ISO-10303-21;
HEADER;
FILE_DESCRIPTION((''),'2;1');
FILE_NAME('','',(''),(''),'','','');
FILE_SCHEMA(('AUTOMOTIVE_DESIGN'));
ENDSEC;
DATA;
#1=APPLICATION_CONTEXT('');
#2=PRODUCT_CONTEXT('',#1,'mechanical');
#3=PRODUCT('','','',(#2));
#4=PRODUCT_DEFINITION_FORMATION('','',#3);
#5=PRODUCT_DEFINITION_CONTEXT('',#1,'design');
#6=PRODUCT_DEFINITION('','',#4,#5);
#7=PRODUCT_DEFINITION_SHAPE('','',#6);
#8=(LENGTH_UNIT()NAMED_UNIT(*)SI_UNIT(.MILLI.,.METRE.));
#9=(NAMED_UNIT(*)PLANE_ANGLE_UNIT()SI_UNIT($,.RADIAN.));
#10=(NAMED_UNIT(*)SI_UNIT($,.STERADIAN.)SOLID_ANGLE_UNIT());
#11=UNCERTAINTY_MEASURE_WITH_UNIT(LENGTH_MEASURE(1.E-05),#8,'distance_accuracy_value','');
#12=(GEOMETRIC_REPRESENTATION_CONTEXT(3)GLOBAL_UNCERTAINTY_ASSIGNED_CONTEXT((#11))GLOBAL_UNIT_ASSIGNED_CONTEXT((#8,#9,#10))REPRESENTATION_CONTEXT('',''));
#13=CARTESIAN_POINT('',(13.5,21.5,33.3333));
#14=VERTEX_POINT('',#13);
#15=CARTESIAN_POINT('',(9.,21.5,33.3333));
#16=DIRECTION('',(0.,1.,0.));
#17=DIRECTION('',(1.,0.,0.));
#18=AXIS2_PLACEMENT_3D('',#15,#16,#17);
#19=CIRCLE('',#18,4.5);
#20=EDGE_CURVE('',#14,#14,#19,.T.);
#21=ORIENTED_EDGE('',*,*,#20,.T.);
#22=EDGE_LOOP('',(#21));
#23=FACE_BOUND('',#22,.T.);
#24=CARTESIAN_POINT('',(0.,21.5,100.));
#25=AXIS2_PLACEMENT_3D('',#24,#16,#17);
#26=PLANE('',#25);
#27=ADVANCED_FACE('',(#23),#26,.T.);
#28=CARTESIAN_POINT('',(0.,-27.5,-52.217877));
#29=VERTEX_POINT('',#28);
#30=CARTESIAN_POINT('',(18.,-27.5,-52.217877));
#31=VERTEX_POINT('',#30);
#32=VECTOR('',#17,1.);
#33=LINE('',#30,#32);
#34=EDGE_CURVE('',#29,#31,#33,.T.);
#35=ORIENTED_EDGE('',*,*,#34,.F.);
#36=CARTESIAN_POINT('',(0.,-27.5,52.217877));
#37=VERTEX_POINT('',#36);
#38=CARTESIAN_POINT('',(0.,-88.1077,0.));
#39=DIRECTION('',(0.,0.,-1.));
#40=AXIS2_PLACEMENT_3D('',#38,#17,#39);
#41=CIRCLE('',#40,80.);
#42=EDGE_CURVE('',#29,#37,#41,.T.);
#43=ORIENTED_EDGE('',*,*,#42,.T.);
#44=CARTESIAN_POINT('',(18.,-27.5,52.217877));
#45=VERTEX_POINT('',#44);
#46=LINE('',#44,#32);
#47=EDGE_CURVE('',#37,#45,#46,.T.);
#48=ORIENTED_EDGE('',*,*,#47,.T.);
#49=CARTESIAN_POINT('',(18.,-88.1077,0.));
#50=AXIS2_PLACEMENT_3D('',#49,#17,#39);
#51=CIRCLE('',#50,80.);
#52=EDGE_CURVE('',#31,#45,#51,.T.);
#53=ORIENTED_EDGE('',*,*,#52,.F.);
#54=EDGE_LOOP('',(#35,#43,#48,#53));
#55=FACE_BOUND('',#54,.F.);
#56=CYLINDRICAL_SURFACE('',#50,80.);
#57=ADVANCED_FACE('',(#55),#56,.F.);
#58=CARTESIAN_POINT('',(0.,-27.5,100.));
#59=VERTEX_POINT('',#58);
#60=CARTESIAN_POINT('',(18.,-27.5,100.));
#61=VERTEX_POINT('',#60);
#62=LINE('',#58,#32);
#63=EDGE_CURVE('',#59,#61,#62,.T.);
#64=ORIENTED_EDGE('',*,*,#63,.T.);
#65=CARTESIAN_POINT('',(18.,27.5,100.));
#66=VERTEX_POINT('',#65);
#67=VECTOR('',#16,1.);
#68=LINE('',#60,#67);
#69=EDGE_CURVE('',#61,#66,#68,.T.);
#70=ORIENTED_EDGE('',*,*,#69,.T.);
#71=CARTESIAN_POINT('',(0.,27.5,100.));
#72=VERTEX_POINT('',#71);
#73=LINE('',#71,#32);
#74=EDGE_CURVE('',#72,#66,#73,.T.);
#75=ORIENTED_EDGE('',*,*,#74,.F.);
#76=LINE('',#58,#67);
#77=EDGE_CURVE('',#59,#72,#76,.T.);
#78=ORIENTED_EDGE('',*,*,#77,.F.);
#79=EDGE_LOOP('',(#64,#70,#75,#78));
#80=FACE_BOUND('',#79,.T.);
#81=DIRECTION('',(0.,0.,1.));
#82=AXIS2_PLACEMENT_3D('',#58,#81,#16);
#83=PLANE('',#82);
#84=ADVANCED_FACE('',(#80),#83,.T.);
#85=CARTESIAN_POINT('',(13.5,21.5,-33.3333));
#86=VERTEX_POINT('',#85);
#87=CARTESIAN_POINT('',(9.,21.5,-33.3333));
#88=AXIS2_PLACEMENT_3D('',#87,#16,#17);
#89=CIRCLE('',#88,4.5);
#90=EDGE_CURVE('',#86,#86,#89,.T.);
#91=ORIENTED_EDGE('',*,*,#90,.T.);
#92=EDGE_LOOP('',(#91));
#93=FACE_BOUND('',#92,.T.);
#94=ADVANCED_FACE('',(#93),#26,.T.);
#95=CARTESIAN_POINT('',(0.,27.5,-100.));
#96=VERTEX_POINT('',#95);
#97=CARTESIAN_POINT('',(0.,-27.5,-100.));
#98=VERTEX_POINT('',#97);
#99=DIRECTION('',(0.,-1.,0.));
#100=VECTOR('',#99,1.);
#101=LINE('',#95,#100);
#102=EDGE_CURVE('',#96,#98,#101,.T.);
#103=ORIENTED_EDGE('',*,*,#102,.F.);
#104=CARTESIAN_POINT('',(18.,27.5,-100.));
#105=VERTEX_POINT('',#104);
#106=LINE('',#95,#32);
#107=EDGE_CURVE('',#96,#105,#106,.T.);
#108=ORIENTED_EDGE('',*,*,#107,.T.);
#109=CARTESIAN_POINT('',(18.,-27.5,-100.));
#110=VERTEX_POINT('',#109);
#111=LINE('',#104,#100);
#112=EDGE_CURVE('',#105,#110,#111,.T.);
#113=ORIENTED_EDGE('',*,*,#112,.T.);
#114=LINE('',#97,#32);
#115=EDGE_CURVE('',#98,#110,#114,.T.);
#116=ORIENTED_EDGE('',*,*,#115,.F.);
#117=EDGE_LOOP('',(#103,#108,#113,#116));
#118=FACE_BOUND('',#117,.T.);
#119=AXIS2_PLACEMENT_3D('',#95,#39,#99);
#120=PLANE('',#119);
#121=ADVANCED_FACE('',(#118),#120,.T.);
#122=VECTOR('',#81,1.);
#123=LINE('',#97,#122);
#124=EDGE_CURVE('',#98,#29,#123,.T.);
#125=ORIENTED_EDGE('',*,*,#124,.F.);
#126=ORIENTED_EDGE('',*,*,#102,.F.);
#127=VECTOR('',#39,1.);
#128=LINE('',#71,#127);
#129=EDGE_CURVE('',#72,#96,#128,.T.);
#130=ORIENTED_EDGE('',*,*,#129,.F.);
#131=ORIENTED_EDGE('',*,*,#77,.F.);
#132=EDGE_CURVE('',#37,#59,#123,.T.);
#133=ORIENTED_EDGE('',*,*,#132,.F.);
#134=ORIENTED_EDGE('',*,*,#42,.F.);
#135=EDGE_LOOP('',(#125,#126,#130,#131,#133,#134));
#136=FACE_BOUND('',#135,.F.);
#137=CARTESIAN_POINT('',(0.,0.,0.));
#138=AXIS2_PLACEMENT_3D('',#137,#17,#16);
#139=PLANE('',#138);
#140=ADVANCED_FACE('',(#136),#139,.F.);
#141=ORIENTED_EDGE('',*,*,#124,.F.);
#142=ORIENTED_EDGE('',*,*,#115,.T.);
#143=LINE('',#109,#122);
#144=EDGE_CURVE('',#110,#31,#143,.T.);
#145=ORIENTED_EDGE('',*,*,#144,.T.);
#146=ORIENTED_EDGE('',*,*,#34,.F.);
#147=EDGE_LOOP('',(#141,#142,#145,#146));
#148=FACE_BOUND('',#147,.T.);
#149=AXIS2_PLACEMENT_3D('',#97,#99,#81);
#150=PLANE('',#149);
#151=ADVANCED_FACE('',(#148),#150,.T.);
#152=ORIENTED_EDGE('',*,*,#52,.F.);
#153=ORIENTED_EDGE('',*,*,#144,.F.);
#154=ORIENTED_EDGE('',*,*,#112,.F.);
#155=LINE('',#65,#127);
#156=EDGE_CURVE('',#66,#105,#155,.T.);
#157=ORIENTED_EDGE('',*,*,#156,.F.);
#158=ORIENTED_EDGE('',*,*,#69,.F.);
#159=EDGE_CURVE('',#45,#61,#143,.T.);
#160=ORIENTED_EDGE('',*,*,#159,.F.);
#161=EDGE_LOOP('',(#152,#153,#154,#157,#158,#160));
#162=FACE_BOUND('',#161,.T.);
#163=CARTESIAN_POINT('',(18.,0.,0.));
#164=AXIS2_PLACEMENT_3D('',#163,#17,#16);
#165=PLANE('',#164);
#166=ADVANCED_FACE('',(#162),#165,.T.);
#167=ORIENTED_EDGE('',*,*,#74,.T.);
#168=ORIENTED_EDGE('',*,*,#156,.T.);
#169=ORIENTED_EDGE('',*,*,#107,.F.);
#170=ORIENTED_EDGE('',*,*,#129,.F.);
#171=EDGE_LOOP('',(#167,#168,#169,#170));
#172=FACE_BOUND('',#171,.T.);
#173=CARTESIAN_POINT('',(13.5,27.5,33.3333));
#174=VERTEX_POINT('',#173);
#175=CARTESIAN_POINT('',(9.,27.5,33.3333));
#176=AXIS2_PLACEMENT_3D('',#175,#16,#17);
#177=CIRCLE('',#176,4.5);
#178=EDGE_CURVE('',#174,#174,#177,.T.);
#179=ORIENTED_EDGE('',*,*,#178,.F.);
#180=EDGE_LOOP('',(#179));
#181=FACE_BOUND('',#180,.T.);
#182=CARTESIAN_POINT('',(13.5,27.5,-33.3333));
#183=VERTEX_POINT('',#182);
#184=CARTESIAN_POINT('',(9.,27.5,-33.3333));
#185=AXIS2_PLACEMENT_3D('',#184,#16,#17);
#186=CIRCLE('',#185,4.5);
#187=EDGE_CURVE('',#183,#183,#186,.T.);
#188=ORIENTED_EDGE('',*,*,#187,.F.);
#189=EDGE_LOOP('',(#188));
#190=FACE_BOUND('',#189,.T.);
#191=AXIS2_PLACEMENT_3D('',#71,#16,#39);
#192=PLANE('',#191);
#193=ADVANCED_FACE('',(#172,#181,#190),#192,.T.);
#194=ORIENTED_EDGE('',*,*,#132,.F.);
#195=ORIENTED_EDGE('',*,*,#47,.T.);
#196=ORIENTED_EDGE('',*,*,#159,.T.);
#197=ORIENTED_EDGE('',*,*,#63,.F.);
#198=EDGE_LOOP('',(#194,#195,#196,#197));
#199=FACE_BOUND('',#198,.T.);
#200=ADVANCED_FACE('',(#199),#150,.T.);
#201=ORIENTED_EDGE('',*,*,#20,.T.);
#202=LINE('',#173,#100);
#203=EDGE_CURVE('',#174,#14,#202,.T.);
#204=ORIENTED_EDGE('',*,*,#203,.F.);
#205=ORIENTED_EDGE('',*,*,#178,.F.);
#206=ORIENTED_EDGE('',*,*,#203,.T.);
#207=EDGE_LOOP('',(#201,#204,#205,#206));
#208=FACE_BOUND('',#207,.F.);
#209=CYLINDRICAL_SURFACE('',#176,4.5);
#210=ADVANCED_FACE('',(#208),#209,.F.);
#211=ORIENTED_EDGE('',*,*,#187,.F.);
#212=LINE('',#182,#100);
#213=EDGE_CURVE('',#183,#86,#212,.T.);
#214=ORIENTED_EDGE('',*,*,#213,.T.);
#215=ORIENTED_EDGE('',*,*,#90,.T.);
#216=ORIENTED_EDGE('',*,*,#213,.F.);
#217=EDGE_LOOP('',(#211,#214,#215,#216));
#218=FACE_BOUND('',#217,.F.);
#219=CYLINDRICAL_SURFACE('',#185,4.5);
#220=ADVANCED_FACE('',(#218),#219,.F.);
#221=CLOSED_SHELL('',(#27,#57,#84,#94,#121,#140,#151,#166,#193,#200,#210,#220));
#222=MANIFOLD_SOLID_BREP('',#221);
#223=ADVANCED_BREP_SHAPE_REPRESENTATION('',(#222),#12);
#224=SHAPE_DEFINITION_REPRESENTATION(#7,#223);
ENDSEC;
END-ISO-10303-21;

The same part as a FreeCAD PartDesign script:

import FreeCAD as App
import Part
import Sketcher


def add_polygon(sketch, points):
    """Adds a closed chain of lines whose ends are joined by coincident constraints."""
    first, n = sketch.GeometryCount, len(points)
    for a, b in zip(points, points[1:] + points[:1]):
        sketch.addGeometry(Part.LineSegment(App.Vector(*a, 0), App.Vector(*b, 0)), False)
    for i in range(n):
        sketch.addConstraint(Sketcher.Constraint("Coincident", first + i, 2, first + (i + 1) % n, 1))

doc = App.newDocument("Part")
params = doc.addObject("Spreadsheet::Sheet", "Params")
for row, (alias, value) in enumerate([
    ("sketch1_width", "55 mm"),
    ("sketch1_height", "200 mm"),
    ("pad1_length", "18 mm"),
    ("sketch2_diameter", "9 mm"),
    ("pocket1_length", "6 mm"),
    ("sketch3_diameter", "160 mm"),
    ("pocket2_length", "18 mm"),
], start=1):
    params.set(f"A{row}", alias)
    params.set(f"B{row}", "=" + value)
    params.setAlias(f"B{row}", alias)

body = doc.addObject("PartDesign::Body", "Body")

sketch1 = body.newObject("Sketcher::SketchObject", "Sketch")
sketch1.AttachmentSupport = (doc.getObject("YZ_Plane"), [""])
sketch1.MapMode = "FlatFace"
add_polygon(sketch1, [(-28, -100), (28, -100), (28, 100), (-28, 100)])
sketch1.addConstraint([
    Sketcher.Constraint("Horizontal", 0),
    Sketcher.Constraint("Vertical", 1),
    Sketcher.Constraint("Horizontal", 2),
    Sketcher.Constraint("Vertical", 3),
    Sketcher.Constraint("Symmetric", 0, 2, 2, 2, -1, 1),
    Sketcher.Constraint("DistanceX", 0, 1, 0, 2, 55.0),
    Sketcher.Constraint("DistanceY", 1, 1, 1, 2, 200.0),
])
sketch1.setExpression("Constraints[9]", "Params.sketch1_width")
sketch1.setExpression("Constraints[10]", "Params.sketch1_height")
pad1 = body.newObject("PartDesign::Pad", "Pad")
pad1.Profile = sketch1
pad1.setExpression("Length", "Params.pad1_length")

sketch2 = body.newObject("Sketcher::SketchObject", "Sketch001")
sketch2.AttachmentSupport = (doc.getObject("XZ_Plane"), [""])
sketch2.MapMode = "FlatFace"
sketch2.AttachmentOffset = App.Placement(App.Vector(0, 0, -27.5), App.Rotation())
sketch2.addGeometry([
    Part.Circle(App.Vector(9, 33.3, 0), App.Vector(0, 0, 1), 4.5),
    Part.Circle(App.Vector(9, -33.3, 0), App.Vector(0, 0, 1), 4.5),
], False)
sketch2.addConstraint([
    Sketcher.Constraint("Equal", 0, 1),
    Sketcher.Constraint("Symmetric", 0, 3, 1, 3, -1),
    Sketcher.Constraint("Diameter", 0, 9.0),
    Sketcher.Constraint("DistanceX", -1, 1, 0, 3, 9.0),
    Sketcher.Constraint("DistanceY", 1, 3, 0, 3, 66.6666),
])
sketch2.setExpression("Constraints[2]", "Params.sketch2_diameter")
pocket1 = body.newObject("PartDesign::Pocket", "Pocket")
pocket1.Profile = sketch2
pocket1.setExpression("Length", "Params.pocket1_length")
pocket1.Reversed = True

sketch3 = body.newObject("Sketcher::SketchObject", "Sketch002")
sketch3.AttachmentSupport = (doc.getObject("YZ_Plane"), [""])
sketch3.MapMode = "FlatFace"
sketch3.AttachmentOffset = App.Placement(App.Vector(0, 0, 18), App.Rotation())
sketch3.addGeometry(Part.Circle(App.Vector(-88, 0, 0), App.Vector(0, 0, 1), 80), False)
sketch3.addConstraint([
    Sketcher.Constraint("PointOnObject", 0, 3, -1),
    Sketcher.Constraint("Diameter", 0, 160.0),
    Sketcher.Constraint("DistanceX", 0, 3, -1, 1, 88.1077),
])
sketch3.setExpression("Constraints[1]", "Params.sketch3_diameter")
pocket2 = body.newObject("PartDesign::Pocket", "Pocket001")
pocket2.Profile = sketch3
pocket2.setExpression("Length", "Params.pocket2_length")

doc.recompute()
